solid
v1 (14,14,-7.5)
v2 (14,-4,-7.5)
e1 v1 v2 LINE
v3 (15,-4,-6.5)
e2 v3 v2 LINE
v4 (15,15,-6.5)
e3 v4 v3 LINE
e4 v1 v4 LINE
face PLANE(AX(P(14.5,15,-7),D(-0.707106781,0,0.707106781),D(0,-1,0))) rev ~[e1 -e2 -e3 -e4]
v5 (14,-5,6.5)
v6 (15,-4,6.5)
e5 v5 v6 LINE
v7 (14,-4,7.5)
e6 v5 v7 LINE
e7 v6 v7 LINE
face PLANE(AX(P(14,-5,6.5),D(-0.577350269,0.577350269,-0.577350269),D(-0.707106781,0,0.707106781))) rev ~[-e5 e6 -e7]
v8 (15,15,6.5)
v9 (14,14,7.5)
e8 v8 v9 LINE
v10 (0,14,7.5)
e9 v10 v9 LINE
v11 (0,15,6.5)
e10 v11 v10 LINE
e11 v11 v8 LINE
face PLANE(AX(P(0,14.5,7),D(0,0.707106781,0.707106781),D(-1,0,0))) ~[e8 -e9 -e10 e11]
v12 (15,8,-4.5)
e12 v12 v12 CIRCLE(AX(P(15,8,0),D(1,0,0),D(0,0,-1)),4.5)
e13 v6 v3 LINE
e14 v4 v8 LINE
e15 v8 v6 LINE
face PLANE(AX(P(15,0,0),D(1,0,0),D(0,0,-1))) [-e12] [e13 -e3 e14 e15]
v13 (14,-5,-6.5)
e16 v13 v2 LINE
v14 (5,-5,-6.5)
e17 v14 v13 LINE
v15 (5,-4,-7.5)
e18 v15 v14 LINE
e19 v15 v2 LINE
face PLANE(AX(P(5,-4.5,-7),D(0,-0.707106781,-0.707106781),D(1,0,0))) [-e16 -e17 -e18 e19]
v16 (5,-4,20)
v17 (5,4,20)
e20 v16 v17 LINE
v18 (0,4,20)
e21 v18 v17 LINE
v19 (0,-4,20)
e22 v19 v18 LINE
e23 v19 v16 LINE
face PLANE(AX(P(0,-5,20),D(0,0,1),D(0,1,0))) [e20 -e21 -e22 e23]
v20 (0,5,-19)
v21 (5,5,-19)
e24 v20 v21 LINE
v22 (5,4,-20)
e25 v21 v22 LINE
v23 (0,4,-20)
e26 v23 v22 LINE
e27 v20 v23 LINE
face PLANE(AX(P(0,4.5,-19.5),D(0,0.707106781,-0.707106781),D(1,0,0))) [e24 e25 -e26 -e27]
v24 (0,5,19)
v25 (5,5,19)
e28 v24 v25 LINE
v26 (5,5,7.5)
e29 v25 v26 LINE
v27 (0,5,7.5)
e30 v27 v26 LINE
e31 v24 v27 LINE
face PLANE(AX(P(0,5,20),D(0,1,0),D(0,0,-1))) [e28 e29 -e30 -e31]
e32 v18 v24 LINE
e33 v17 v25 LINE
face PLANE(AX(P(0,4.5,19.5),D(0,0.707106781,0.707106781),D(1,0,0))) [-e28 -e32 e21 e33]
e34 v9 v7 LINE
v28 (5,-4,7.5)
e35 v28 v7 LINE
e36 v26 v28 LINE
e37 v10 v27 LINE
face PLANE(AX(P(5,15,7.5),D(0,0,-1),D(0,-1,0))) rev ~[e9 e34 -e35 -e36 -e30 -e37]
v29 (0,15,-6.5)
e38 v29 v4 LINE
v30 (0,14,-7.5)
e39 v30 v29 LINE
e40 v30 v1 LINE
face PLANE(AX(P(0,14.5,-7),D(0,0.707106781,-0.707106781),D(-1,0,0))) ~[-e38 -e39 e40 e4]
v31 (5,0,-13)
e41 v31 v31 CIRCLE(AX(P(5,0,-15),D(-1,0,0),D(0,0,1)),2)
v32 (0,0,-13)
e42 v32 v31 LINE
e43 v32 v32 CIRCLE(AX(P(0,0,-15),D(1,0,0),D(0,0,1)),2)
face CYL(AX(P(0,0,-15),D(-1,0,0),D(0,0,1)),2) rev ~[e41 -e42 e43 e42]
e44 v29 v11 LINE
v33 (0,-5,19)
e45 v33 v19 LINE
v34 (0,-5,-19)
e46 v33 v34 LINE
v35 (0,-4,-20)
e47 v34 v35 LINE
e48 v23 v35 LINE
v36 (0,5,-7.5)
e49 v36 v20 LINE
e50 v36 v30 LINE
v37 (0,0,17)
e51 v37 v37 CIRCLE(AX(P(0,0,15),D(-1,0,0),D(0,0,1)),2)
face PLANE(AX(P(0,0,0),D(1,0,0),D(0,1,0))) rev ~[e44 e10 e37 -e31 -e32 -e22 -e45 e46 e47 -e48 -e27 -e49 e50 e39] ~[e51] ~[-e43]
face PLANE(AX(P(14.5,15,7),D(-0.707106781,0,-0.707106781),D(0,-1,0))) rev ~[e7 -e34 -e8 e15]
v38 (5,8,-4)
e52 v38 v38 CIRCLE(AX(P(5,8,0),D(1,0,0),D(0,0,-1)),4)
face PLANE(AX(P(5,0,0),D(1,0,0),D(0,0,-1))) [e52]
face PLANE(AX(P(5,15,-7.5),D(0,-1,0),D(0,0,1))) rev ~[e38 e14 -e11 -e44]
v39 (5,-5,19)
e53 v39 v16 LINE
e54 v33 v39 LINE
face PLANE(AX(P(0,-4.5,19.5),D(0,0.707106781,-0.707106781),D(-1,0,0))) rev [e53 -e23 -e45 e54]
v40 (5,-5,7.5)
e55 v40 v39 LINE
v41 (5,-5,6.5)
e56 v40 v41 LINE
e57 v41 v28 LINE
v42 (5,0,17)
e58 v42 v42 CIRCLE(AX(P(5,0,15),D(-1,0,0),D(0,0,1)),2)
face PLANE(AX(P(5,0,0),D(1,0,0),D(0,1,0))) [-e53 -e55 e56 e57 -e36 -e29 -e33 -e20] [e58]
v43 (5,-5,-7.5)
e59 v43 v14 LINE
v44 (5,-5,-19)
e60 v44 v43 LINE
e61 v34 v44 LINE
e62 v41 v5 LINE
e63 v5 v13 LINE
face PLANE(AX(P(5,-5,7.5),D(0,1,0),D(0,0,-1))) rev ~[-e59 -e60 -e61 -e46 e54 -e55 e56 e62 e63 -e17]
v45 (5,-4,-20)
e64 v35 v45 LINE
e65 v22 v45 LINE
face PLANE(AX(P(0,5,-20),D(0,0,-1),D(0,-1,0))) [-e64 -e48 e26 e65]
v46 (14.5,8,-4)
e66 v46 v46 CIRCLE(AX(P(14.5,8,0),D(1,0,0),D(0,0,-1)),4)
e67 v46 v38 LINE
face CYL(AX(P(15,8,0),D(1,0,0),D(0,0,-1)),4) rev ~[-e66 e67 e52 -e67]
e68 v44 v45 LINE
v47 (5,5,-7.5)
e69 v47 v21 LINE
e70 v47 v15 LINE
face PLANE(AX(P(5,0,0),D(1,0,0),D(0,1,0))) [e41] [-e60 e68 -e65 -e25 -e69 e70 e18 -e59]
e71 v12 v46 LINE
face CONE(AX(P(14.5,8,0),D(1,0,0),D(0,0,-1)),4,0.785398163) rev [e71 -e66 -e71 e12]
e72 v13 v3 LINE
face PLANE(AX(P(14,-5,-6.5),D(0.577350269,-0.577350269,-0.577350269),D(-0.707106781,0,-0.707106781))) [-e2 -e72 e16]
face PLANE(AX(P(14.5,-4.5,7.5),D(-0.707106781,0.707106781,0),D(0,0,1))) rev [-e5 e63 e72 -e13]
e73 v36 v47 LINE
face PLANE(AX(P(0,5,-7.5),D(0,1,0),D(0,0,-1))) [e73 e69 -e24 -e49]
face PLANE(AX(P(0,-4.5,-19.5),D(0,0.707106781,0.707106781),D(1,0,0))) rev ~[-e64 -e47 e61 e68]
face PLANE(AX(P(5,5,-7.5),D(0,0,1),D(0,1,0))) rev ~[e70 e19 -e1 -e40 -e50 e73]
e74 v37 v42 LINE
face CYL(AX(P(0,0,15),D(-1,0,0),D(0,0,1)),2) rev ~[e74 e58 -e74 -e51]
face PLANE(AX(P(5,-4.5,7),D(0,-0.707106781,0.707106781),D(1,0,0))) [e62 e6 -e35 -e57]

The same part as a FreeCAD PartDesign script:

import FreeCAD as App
import Part
import Sketcher
from FreeCAD import Vector
Q = App.Units.Quantity


def edges_at(feature, points):
    """Names of the edges that pass closest to the given points."""
    edges = feature.Shape.Edges
    near = lambda p: min(range(len(edges)), key=lambda i: edges[i].distToShape(Part.Vertex(*p))[0])
    return sorted({f"Edge{near(p) + 1}" for p in points})


def add_polygon(sketch, points):
    """Adds a closed chain of lines whose ends are joined by coincident constraints."""
    first, n = sketch.GeometryCount, len(points)
    for a, b in zip(points, points[1:] + points[:1]):
        sketch.addGeometry(Part.LineSegment(App.Vector(*a, 0), App.Vector(*b, 0)), False)
    for i in range(n):
        sketch.addConstraint(Sketcher.Constraint("Coincident", first + i, 2, first + (i + 1) % n, 1))

doc = App.newDocument("Part")
body = doc.addObject("PartDesign::Body", "Body")

sketch1 = body.newObject("Sketcher::SketchObject", "Sketch")
sketch1.AttachmentSupport = (doc.getObject("YZ_Plane"), [""])
sketch1.MapMode = "FlatFace"
add_polygon(sketch1, [(5, 20), (-5, 20), (-5, -20), (5, -20), (5, -8), (15, -8), (15, 8), (5, 8)])
sketch1.addConstraint([
    Sketcher.Constraint("Horizontal", 0),
    Sketcher.Constraint("Vertical", 1),
    Sketcher.Constraint("Horizontal", 2),
    Sketcher.Constraint("Vertical", 3),
    Sketcher.Constraint("Horizontal", 4),
    Sketcher.Constraint("Vertical", 5),
    Sketcher.Constraint("Horizontal", 6),
    Sketcher.Constraint("Vertical", 7),
    Sketcher.Constraint("Symmetric", 0, 2, 2, 2, -1, 1),
    Sketcher.Constraint("Symmetric", 3, 2, 6, 2, -1),
    Sketcher.Constraint("Equal", 2, 4),
    Sketcher.Constraint("DistanceX", 0, 2, 0, 1, Q("10 mm")),
    Sketcher.Constraint("DistanceY", 1, 2, 1, 1, Q("40 mm")),
    Sketcher.Constraint("DistanceY", 5, 1, 5, 2, Q("15 mm")),
])
pad1 = body.newObject("PartDesign::Pad", "Pad")
pad1.Profile = sketch1
pad1.Length = 5

sketch2 = body.newObject("Sketcher::SketchObject", "Sketch001")
sketch2.AttachmentSupport = (doc.getObject("YZ_Plane"), [""])
sketch2.MapMode = "FlatFace"
sketch2.addGeometry([
    Part.Circle(Vector(0, -15, 0), Vector(0, 0, 1), 2),
    Part.Circle(Vector(0, 15, 0), Vector(0, 0, 1), 2),
], False)
sketch2.addConstraint([
    Sketcher.Constraint("Equal", 0, 1),
    Sketcher.Constraint("Symmetric", 0, 3, 1, 3, -1, 1),
    Sketcher.Constraint("PointOnObject", 0, 3, -2),
    Sketcher.Constraint("Diameter", 0, Q("4 mm")),
    Sketcher.Constraint("DistanceY", 0, 3, -1, 1, Q("15 mm")),
])
pocket1 = body.newObject("PartDesign::Pocket", "Pocket")
pocket1.Profile = sketch2
pocket1.Length = 10
pocket1.Reversed = True

sketch3 = body.newObject("Sketcher::SketchObject", "Sketch002")
sketch3.AttachmentSupport = (doc.getObject("YZ_Plane"), [""])
sketch3.MapMode = "FlatFace"
sketch3.AttachmentOffset = App.Placement(Vector(0, 0, 5), App.Rotation())
add_polygon(sketch3, [(-5, -8), (15, -8), (15, 8), (-5, 8)])
sketch3.addConstraint([
    Sketcher.Constraint("Horizontal", 0),
    Sketcher.Constraint("Vertical", 1),
    Sketcher.Constraint("Horizontal", 2),
    Sketcher.Constraint("Vertical", 3),
    Sketcher.Constraint("DistanceX", 0, 1, 0, 2, Q("20 mm")),
    Sketcher.Constraint("DistanceY", 1, 1, 1, 2, Q("15 mm")),
    Sketcher.Constraint("DistanceX", -1, 1, 0, 2, Q("15 mm")),
    Sketcher.Constraint("DistanceY", 0, 2, -1, 1, Q("7.5 mm")),
])
pad2 = body.newObject("PartDesign::Pad", "Pad001")
pad2.Profile = sketch3
pad2.Length = 10

sketch4 = body.newObject("Sketcher::SketchObject", "Sketch003")
sketch4.AttachmentSupport = (doc.getObject("YZ_Plane"), [""])
sketch4.MapMode = "FlatFace"
sketch4.AttachmentOffset = App.Placement(Vector(0, 0, 15), App.Rotation())
sketch4.addGeometry(Part.Circle(Vector(8, 0, 0), Vector(0, 0, 1), 4), False)
sketch4.addConstraint([
    Sketcher.Constraint("PointOnObject", 0, 3, -1),
    Sketcher.Constraint("Diameter", 0, Q("8 mm")),
    Sketcher.Constraint("DistanceX", -1, 1, 0, 3, Q("8 mm")),
])
pocket2 = body.newObject("PartDesign::Pocket", "Pocket001")
pocket2.Profile = sketch4
pocket2.Length = 10
doc.recompute()

chamfer = body.newObject("PartDesign::Chamfer", "Chamfer")
chamfer.Base = (pocket2, edges_at(pocket2, [
    (7.5, 15, 7.5),
    (7.5, 15, -7.5),
    (15, 5, -7.5),
    (15, 5, 7.5),
    (15, -5, 0),
    (10, -5, 7.5),
    (2.5, 5, 20),
    (2.5, -5, 20),
    (2.5, 5, -20),
    (2.5, -5, -20),
    (10, -5, -7.5),
]))
chamfer.Size = 1
doc.recompute()

chamfer2 = body.newObject("PartDesign::Chamfer", "Chamfer001")
chamfer2.Base = (chamfer, edges_at(chamfer, [(15, 8, 4)]))
chamfer2.Size = 0.5

doc.recompute()
